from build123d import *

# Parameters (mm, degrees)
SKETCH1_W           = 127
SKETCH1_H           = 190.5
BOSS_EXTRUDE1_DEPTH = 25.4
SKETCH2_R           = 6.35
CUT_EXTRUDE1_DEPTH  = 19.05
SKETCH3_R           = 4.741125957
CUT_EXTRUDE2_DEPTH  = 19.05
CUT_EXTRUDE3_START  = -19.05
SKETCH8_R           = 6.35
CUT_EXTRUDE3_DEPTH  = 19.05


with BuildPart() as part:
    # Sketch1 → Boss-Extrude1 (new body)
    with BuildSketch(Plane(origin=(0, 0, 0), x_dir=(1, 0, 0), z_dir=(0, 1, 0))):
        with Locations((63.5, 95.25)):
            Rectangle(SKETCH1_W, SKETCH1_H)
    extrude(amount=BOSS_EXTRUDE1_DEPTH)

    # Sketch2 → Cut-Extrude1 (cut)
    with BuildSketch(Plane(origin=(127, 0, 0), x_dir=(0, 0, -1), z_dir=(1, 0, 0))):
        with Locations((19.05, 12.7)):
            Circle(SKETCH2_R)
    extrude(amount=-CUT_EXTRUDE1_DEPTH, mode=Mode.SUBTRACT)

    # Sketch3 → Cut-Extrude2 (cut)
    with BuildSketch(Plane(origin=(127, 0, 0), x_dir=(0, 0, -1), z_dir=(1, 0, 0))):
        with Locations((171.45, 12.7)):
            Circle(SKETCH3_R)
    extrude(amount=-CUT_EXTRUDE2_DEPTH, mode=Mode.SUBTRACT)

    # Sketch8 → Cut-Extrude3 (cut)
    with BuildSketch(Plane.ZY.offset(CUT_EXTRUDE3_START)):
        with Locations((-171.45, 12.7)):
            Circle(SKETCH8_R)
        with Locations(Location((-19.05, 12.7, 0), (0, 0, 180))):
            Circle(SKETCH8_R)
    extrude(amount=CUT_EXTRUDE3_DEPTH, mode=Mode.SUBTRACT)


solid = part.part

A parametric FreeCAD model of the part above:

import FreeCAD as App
import Part
import Sketcher
from FreeCAD import Vector
Q = App.Units.Quantity

doc = App.newDocument("Part")
body = doc.addObject("PartDesign::Body", "Body")

# Sketch on XZ plane
sketch1 = body.newObject("Sketcher::SketchObject", "Sketch")
sketch1.AttachmentSupport = (doc.getObject("XZ_Plane"), [""])
sketch1.MapMode = "FlatFace"
sketch1.addGeometry(Part.LineSegment(Vector(0, -190.5, 0), Vector(0, 0, 0)), False)
sketch1.addGeometry(Part.LineSegment(Vector(0, 0, 0), Vector(127, 0, 0)), False)
sketch1.addGeometry(Part.LineSegment(Vector(127, 0, 0), Vector(127, -190.5, 0)), False)
sketch1.addGeometry(Part.LineSegment(Vector(127, -190.5, 0), Vector(0, -190.5, 0)), False)
sketch1.addConstraint(Sketcher.Constraint("Coincident", 0, 2, 1, 1))
sketch1.addConstraint(Sketcher.Constraint("Coincident", 1, 2, 2, 1))
sketch1.addConstraint(Sketcher.Constraint("Coincident", 2, 2, 3, 1))
sketch1.addConstraint(Sketcher.Constraint("Coincident", 3, 2, 0, 1))
sketch1.addConstraint(Sketcher.Constraint("Vertical", 0))
sketch1.addConstraint(Sketcher.Constraint("Horizontal", 1))
sketch1.addConstraint(Sketcher.Constraint("Vertical", 2))
sketch1.addConstraint(Sketcher.Constraint("Horizontal", 3))
sketch1.addConstraint(Sketcher.Constraint("Coincident", 0, 2, -1, 1))
sketch1.addConstraint(Sketcher.Constraint("DistanceX", 1, 1, 1, 2, Q("5 in")))
sketch1.addConstraint(Sketcher.Constraint("DistanceY", 0, 1, 0, 2, Q("7.5 in")))
pad1 = body.newObject("PartDesign::Pad", "Pad")
pad1.Profile = sketch1
pad1.Length = Q("1 in")
pad1.Reversed = True

# Sketch on YZ plane
sketch2 = body.newObject("Sketcher::SketchObject", "Sketch001")
sketch2.AttachmentSupport = (doc.getObject("YZ_Plane"), [""])
sketch2.MapMode = "FlatFace"
sketch2.AttachmentOffset = App.Placement(Vector(0, 0, 5 * 25.4), App.Rotation())
sketch2.addGeometry(Part.Circle(Vector(12.7, -19.05, 0), Vector(0, 0, 1), 6.35), False)
sketch2.addConstraint(Sketcher.Constraint("Diameter", 0, Q("0.5 in")))
sketch2.addConstraint(Sketcher.Constraint("DistanceX", -1, 1, 0, 3, Q("0.5 in")))
sketch2.addConstraint(Sketcher.Constraint("DistanceY", 0, 3, -1, 1, Q("0.75 in")))
pocket1 = body.newObject("PartDesign::Pocket", "Pocket")
pocket1.Profile = sketch2
pocket1.Length = Q("0.75 in")

# Sketch on YZ plane
sketch3 = body.newObject("Sketcher::SketchObject", "Sketch002")
sketch3.AttachmentSupport = (doc.getObject("YZ_Plane"), [""])
sketch3.MapMode = "FlatFace"
sketch3.AttachmentOffset = App.Placement(Vector(0, 0, 5 * 25.4), App.Rotation())
sketch3.addGeometry(Part.Circle(Vector(12.7, -171.45, 0), Vector(0, 0, 1), 4.741126), False)
sketch3.addConstraint(Sketcher.Constraint("DistanceX", -1, 1, 0, 3, Q("0.5 in")))
sketch3.addConstraint(Sketcher.Constraint("DistanceY", 0, 3, -1, 1, Q("6.75 in")))
sketch3.addConstraint(Sketcher.Constraint("Diameter", 0, 9.482252))
pocket2 = body.newObject("PartDesign::Pocket", "Pocket001")
pocket2.Profile = sketch3
pocket2.Length = Q("0.75 in")

# Sketch on YZ plane
sketch4 = body.newObject("Sketcher::SketchObject", "Sketch003")
sketch4.AttachmentSupport = (doc.getObject("YZ_Plane"), [""])
sketch4.MapMode = "FlatFace"
sketch4.AttachmentOffset = App.Placement(Vector(0, 0, 0.75 * 25.4), App.Rotation())
sketch4.addGeometry(Part.Circle(Vector(12.7, -171.45, 0), Vector(0, 0, 1), 6.35), False)
sketch4.addGeometry(Part.Circle(Vector(12.7, -19.05, 0), Vector(0, 0, 1), 6.35), False)
sketch4.addConstraint(Sketcher.Constraint("Equal", 0, 1))
sketch4.addConstraint(Sketcher.Constraint("Vertical", 0, 3, 1, 3))
sketch4.addConstraint(Sketcher.Constraint("Diameter", 0, Q("0.5 in")))
sketch4.addConstraint(Sketcher.Constraint("DistanceY", 0, 3, 1, 3, Q("6 in")))
sketch4.addConstraint(Sketcher.Constraint("DistanceX", -1, 1, 0, 3, Q("0.5 in")))
sketch4.addConstraint(Sketcher.Constraint("DistanceY", 0, 3, -1, 1, Q("6.75 in")))
pocket3 = body.newObject("PartDesign::Pocket", "Pocket002")
pocket3.Profile = sketch4
pocket3.Length = Q("0.75 in")

doc.recompute()
